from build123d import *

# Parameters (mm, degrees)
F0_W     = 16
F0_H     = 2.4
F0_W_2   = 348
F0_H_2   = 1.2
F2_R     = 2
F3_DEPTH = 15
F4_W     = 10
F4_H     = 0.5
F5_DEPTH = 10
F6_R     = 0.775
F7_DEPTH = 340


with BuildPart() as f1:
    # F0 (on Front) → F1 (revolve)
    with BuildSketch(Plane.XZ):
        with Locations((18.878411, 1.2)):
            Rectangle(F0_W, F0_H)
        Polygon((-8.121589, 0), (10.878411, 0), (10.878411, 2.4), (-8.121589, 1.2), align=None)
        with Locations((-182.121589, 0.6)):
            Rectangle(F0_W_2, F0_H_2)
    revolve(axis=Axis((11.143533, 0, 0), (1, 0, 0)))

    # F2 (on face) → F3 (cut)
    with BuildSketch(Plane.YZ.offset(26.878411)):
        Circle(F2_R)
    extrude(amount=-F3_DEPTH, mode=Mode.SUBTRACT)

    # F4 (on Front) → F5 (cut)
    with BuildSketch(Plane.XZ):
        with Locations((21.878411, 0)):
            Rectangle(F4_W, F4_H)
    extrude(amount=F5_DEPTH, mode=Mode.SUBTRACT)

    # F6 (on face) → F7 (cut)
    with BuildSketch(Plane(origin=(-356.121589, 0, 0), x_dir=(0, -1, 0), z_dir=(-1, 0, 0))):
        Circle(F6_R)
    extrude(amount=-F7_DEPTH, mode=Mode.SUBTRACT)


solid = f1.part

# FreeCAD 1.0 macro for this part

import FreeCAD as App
import Part
import Sketcher
from FreeCAD import Vector
Q = App.Units.Quantity

doc = App.newDocument("Part")
body = doc.addObject("PartDesign::Body", "Body")

# Sketch on XZ plane
sketch1 = body.newObject("Sketcher::SketchObject", "Sketch")
sketch1.AttachmentSupport = (doc.getObject("XZ_Plane"), [""])
sketch1.MapMode = "FlatFace"
sketch1.addGeometry(Part.LineSegment(Vector(26.9, 0, 0), Vector(26.9, 2.4, 0)), False)
sketch1.addGeometry(Part.LineSegment(Vector(26.9, 2.4, 0), Vector(10.9, 2.4, 0)), False)
sketch1.addGeometry(Part.LineSegment(Vector(10.9, 2.4, 0), Vector(-8.1, 1.2, 0)), False)
sketch1.addGeometry(Part.LineSegment(Vector(-8.1, 1.2, 0), Vector(-356.1, 1.2, 0)), False)
sketch1.addGeometry(Part.LineSegment(Vector(-356.1, 1.2, 0), Vector(-356.1, 0, 0)), False)
sketch1.addGeometry(Part.LineSegment(Vector(-356.1, 0, 0), Vector(26.9, 0, 0)), False)
sketch1.addConstraint(Sketcher.Constraint("Coincident", 0, 2, 1, 1))
sketch1.addConstraint(Sketcher.Constraint("Coincident", 1, 2, 2, 1))
sketch1.addConstraint(Sketcher.Constraint("Coincident", 2, 2, 3, 1))
sketch1.addConstraint(Sketcher.Constraint("Coincident", 3, 2, 4, 1))
sketch1.addConstraint(Sketcher.Constraint("Coincident", 4, 2, 5, 1))
sketch1.addConstraint(Sketcher.Constraint("Coincident", 5, 2, 0, 1))
sketch1.addConstraint(Sketcher.Constraint("Vertical", 0))
sketch1.addConstraint(Sketcher.Constraint("Horizontal", 1))
sketch1.addConstraint(Sketcher.Constraint("Horizontal", 3))
sketch1.addConstraint(Sketcher.Constraint("Vertical", 4))
sketch1.addConstraint(Sketcher.Constraint("Horizontal", 5))
sketch1.addConstraint(Sketcher.Constraint("PointOnObject", 4, 2, -1))
sketch1.addConstraint(Sketcher.Constraint("DistanceX", 1, 2, 1, 1, Q("16 mm")))
sketch1.addConstraint(Sketcher.Constraint("DistanceX", 3, 2, 3, 1, Q("348 mm")))
sketch1.addConstraint(Sketcher.Constraint("DistanceX", 5, 1, 5, 2, Q("383 mm")))
sketch1.addConstraint(Sketcher.Constraint("DistanceY", 0, 1, 0, 2, Q("2.4 mm")))
sketch1.addConstraint(Sketcher.Constraint("DistanceY", 4, 2, 4, 1, Q("1.2 mm")))
sketch1.addConstraint(Sketcher.Constraint("DistanceX", -1, 1, 0, 2, Q("26.878411 mm")))
revolution = body.newObject("PartDesign::Revolution", "Revolution")
revolution.Profile = sketch1
revolution.ReferenceAxis = (sketch1, ["H_Axis"])
revolution.Angle = 360

# Sketch on YZ plane
sketch2 = body.newObject("Sketcher::SketchObject", "Sketch001")
sketch2.AttachmentSupport = (doc.getObject("YZ_Plane"), [""])
sketch2.MapMode = "FlatFace"
sketch2.AttachmentOffset = App.Placement(Vector(0, 0, 26.878411), App.Rotation())
sketch2.addGeometry(Part.Circle(Vector(0, 0, 0), Vector(0, 0, 1), 2), False)
sketch2.addConstraint(Sketcher.Constraint("Coincident", 0, 3, -1, 1))
sketch2.addConstraint(Sketcher.Constraint("Diameter", 0, Q("4 mm")))
pocket1 = body.newObject("PartDesign::Pocket", "Pocket")
pocket1.Profile = sketch2
pocket1.Length = 15

# Sketch on XZ plane
sketch3 = body.newObject("Sketcher::SketchObject", "Sketch002")
sketch3.AttachmentSupport = (doc.getObject("XZ_Plane"), [""])
sketch3.MapMode = "FlatFace"
sketch3.addGeometry(Part.LineSegment(Vector(16.9, 0.2, 0), Vector(16.9, -0.2, 0)), False)
sketch3.addGeometry(Part.LineSegment(Vector(16.9, -0.2, 0), Vector(26.9, -0.2, 0)), False)
sketch3.addGeometry(Part.LineSegment(Vector(26.9, -0.2, 0), Vector(26.9, 0.2, 0)), False)
sketch3.addGeometry(Part.LineSegment(Vector(26.9, 0.2, 0), Vector(16.9, 0.2, 0)), False)
sketch3.addConstraint(Sketcher.Constraint("Coincident", 0, 2, 1, 1))
sketch3.addConstraint(Sketcher.Constraint("Coincident", 1, 2, 2, 1))
sketch3.addConstraint(Sketcher.Constraint("Coincident", 2, 2, 3, 1))
sketch3.addConstraint(Sketcher.Constraint("Coincident", 3, 2, 0, 1))
sketch3.addConstraint(Sketcher.Constraint("Vertical", 0))
sketch3.addConstraint(Sketcher.Constraint("Horizontal", 1))
sketch3.addConstraint(Sketcher.Constraint("Vertical", 2))
sketch3.addConstraint(Sketcher.Constraint("Horizontal", 3))
sketch3.addConstraint(Sketcher.Constraint("DistanceX", 1, 1, 1, 2, Q("10 mm")))
sketch3.addConstraint(Sketcher.Constraint("DistanceY", 0, 2, 0, 1, Q("0.5 mm")))
sketch3.addConstraint(Sketcher.Constraint("DistanceY", 0, 2, -1, 1, Q("0.25 mm")))
sketch3.addConstraint(Sketcher.Constraint("DistanceX", -1, 1, 0, 2, Q("16.878411 mm")))
pocket2 = body.newObject("PartDesign::Pocket", "Pocket001")
pocket2.Profile = sketch3
pocket2.Length = 10
pocket2.Reversed = True

# Sketch on YZ plane
sketch4 = body.newObject("Sketcher::SketchObject", "Sketch003")
sketch4.AttachmentSupport = (doc.getObject("YZ_Plane"), [""])
sketch4.MapMode = "FlatFace"
sketch4.AttachmentOffset = App.Placement(Vector(0, 0, -356.121589), App.Rotation())
sketch4.addGeometry(Part.Circle(Vector(0, 0, 0), Vector(0, 0, 1), 0.8), False)
sketch4.addConstraint(Sketcher.Constraint("Coincident", 0, 3, -1, 1))
sketch4.addConstraint(Sketcher.Constraint("Diameter", 0, Q("1.55 mm")))
pocket3 = body.newObject("PartDesign::Pocket", "Pocket002")
pocket3.Profile = sketch4
pocket3.Length = 340
pocket3.Reversed = True

doc.recompute()
